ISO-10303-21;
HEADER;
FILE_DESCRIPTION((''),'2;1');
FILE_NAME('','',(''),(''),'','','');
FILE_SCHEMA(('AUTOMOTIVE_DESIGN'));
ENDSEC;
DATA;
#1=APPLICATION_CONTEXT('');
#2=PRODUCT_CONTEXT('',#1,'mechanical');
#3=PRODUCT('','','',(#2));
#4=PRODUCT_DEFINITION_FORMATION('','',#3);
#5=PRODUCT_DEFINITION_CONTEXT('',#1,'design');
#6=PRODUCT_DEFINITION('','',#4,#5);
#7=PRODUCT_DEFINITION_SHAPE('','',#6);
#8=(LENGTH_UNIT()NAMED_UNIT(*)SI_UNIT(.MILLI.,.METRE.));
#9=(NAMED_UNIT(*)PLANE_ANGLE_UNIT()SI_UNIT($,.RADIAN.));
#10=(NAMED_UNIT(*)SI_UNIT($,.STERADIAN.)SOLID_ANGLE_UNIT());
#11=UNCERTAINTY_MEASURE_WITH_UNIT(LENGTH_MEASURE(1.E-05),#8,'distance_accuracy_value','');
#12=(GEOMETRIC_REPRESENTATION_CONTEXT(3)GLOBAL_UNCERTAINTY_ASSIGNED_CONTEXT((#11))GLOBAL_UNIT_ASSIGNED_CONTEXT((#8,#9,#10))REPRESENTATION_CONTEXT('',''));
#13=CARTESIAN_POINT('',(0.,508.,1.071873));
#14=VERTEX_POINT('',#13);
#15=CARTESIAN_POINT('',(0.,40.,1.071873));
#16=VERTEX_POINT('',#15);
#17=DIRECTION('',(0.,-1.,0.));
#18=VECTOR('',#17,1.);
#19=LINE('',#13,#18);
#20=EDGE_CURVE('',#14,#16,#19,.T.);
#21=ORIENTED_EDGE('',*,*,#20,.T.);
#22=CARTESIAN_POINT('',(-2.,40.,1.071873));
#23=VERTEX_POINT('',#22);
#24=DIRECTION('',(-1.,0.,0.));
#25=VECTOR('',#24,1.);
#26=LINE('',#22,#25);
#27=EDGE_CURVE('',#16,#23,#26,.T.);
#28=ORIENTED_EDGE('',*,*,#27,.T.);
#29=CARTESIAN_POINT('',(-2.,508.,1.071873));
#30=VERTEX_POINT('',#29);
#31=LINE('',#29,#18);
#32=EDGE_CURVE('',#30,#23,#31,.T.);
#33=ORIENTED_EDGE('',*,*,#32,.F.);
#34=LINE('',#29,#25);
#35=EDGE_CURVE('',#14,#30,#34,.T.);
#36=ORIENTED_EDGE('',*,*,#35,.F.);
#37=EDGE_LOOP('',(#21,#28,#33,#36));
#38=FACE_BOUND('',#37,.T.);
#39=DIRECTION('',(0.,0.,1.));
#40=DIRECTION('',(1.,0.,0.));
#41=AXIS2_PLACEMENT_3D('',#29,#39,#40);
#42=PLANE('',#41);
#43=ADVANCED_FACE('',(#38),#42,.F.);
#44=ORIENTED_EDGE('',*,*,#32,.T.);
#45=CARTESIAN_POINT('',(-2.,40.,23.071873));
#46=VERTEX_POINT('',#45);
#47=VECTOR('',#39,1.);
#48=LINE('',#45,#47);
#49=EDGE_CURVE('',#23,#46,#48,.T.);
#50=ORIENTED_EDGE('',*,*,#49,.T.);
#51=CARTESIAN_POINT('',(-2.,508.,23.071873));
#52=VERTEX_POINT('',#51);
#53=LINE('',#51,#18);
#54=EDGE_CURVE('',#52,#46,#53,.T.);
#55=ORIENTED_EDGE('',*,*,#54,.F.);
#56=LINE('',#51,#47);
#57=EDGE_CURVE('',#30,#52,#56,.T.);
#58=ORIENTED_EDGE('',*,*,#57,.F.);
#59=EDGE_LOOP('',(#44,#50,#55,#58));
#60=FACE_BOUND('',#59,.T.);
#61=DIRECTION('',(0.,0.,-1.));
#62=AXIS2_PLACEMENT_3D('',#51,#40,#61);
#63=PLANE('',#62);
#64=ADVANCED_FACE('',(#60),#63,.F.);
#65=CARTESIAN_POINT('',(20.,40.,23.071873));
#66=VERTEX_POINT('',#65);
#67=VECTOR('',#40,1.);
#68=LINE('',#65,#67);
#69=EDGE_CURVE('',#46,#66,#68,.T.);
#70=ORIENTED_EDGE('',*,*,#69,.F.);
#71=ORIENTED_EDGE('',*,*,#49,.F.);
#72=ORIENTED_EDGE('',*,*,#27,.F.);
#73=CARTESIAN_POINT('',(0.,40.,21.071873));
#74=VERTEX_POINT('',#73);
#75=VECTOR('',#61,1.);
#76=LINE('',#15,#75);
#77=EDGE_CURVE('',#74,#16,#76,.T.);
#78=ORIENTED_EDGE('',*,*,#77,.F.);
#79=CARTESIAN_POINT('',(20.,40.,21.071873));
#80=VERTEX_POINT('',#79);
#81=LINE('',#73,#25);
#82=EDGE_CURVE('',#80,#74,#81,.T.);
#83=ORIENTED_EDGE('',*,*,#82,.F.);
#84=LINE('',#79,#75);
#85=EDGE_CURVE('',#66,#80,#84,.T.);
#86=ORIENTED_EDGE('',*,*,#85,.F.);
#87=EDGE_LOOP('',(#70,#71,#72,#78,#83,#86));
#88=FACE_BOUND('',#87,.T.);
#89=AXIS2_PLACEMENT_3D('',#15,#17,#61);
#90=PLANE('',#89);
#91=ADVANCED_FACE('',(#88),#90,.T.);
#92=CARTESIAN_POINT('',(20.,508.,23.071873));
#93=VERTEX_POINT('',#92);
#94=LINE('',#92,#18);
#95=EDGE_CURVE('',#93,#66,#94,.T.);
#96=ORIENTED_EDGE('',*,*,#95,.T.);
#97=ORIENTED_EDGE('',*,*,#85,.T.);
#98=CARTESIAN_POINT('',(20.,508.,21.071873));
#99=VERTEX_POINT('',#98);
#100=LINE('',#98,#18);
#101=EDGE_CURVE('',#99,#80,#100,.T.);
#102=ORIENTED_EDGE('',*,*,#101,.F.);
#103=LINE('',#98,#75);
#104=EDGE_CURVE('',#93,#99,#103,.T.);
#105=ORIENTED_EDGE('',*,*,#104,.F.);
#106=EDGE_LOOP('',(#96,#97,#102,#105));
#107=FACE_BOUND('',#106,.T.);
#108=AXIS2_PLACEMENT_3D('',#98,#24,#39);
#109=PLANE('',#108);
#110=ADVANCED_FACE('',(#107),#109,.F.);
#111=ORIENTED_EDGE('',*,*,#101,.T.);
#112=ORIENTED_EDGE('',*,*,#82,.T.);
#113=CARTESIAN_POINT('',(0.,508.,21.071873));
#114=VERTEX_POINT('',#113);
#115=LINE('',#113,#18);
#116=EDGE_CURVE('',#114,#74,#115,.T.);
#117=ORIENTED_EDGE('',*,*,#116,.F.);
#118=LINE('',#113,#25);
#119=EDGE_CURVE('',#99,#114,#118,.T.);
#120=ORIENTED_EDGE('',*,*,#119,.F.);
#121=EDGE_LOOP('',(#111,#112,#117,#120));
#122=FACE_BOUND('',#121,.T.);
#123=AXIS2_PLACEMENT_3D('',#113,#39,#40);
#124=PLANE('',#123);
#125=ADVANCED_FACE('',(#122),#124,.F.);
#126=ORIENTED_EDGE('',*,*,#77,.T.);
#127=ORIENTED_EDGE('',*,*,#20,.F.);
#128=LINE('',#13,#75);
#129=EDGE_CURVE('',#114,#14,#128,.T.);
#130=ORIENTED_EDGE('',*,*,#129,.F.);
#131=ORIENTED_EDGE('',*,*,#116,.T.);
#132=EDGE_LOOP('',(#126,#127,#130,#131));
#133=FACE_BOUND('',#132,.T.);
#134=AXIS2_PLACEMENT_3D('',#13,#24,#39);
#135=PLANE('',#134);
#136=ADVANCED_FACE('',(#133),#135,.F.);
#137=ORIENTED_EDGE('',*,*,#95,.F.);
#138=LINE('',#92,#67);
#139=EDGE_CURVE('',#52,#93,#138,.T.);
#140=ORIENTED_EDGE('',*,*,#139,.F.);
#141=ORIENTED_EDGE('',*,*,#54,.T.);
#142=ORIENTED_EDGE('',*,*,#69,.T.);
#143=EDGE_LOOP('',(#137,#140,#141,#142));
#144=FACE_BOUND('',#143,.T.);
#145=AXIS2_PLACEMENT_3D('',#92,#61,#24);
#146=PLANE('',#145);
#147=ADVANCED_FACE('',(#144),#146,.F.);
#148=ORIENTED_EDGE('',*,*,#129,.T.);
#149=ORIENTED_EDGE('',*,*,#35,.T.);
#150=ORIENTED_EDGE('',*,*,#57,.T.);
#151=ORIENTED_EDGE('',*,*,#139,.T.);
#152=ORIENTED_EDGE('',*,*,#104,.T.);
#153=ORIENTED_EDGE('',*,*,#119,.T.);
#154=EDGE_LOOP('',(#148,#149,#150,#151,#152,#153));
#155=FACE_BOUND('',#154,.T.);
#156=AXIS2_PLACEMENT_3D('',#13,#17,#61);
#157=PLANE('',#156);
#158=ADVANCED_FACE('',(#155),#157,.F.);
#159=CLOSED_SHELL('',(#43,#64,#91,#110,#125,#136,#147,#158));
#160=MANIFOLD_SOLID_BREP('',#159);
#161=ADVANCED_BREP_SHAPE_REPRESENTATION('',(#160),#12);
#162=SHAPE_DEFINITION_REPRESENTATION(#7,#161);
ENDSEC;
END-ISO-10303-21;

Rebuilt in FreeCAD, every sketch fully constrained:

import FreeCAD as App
import Part
import Sketcher

V = App.Vector
Q = App.Units.Quantity

doc = App.newDocument("Part")
body = doc.addObject("PartDesign::Body", "Body")

sketch1 = body.newObject("Sketcher::SketchObject", "Sketch")
sketch1.AttachmentSupport = (doc.getObject("XZ_Plane"), [""])
sketch1.MapMode = "FlatFace"
sketch1.AttachmentOffset = App.Placement(V(0, 0, -40), App.Rotation())
sketch1.addGeometry(Part.LineSegment(V(0, 21.1, 0), V(0, 1.1, 0)), False)
sketch1.addGeometry(Part.LineSegment(V(0, 1.1, 0), V(-2, 1.1, 0)), False)
sketch1.addGeometry(Part.LineSegment(V(-2, 1.1, 0), V(-2, 23.1, 0)), False)
sketch1.addGeometry(Part.LineSegment(V(-2, 23.1, 0), V(20, 23.1, 0)), False)
sketch1.addGeometry(Part.LineSegment(V(20, 23.1, 0), V(20, 21.1, 0)), False)
sketch1.addGeometry(Part.LineSegment(V(20, 21.1, 0), V(0, 21.1, 0)), False)
sketch1.addConstraint(Sketcher.Constraint("Coincident", 0, 2, 1, 1))
sketch1.addConstraint(Sketcher.Constraint("Coincident", 1, 2, 2, 1))
sketch1.addConstraint(Sketcher.Constraint("Coincident", 2, 2, 3, 1))
sketch1.addConstraint(Sketcher.Constraint("Coincident", 3, 2, 4, 1))
sketch1.addConstraint(Sketcher.Constraint("Coincident", 4, 2, 5, 1))
sketch1.addConstraint(Sketcher.Constraint("Coincident", 5, 2, 0, 1))
sketch1.addConstraint(Sketcher.Constraint("Vertical", 0))
sketch1.addConstraint(Sketcher.Constraint("Horizontal", 1))
sketch1.addConstraint(Sketcher.Constraint("Vertical", 2))
sketch1.addConstraint(Sketcher.Constraint("Horizontal", 3))
sketch1.addConstraint(Sketcher.Constraint("Vertical", 4))
sketch1.addConstraint(Sketcher.Constraint("Horizontal", 5))
sketch1.addConstraint(Sketcher.Constraint("PointOnObject", 0, 2, -2))
sketch1.addConstraint(Sketcher.Constraint("Equal", 5, 0))
sketch1.addConstraint(Sketcher.Constraint("Equal", 3, 2))
sketch1.addConstraint(Sketcher.Constraint("DistanceX", 1, 2, 1, 1, Q("2 mm")))
sketch1.addConstraint(Sketcher.Constraint("DistanceX", 3, 1, 3, 2, Q("22 mm")))
sketch1.addConstraint(Sketcher.Constraint("DistanceY", -1, 1, 0, 2, Q("1.071873 mm")))
pad1 = body.newObject("PartDesign::Pad", "Pad")
pad1.Profile = sketch1
pad1.Length = 468
pad1.Reversed = True

doc.recompute()
